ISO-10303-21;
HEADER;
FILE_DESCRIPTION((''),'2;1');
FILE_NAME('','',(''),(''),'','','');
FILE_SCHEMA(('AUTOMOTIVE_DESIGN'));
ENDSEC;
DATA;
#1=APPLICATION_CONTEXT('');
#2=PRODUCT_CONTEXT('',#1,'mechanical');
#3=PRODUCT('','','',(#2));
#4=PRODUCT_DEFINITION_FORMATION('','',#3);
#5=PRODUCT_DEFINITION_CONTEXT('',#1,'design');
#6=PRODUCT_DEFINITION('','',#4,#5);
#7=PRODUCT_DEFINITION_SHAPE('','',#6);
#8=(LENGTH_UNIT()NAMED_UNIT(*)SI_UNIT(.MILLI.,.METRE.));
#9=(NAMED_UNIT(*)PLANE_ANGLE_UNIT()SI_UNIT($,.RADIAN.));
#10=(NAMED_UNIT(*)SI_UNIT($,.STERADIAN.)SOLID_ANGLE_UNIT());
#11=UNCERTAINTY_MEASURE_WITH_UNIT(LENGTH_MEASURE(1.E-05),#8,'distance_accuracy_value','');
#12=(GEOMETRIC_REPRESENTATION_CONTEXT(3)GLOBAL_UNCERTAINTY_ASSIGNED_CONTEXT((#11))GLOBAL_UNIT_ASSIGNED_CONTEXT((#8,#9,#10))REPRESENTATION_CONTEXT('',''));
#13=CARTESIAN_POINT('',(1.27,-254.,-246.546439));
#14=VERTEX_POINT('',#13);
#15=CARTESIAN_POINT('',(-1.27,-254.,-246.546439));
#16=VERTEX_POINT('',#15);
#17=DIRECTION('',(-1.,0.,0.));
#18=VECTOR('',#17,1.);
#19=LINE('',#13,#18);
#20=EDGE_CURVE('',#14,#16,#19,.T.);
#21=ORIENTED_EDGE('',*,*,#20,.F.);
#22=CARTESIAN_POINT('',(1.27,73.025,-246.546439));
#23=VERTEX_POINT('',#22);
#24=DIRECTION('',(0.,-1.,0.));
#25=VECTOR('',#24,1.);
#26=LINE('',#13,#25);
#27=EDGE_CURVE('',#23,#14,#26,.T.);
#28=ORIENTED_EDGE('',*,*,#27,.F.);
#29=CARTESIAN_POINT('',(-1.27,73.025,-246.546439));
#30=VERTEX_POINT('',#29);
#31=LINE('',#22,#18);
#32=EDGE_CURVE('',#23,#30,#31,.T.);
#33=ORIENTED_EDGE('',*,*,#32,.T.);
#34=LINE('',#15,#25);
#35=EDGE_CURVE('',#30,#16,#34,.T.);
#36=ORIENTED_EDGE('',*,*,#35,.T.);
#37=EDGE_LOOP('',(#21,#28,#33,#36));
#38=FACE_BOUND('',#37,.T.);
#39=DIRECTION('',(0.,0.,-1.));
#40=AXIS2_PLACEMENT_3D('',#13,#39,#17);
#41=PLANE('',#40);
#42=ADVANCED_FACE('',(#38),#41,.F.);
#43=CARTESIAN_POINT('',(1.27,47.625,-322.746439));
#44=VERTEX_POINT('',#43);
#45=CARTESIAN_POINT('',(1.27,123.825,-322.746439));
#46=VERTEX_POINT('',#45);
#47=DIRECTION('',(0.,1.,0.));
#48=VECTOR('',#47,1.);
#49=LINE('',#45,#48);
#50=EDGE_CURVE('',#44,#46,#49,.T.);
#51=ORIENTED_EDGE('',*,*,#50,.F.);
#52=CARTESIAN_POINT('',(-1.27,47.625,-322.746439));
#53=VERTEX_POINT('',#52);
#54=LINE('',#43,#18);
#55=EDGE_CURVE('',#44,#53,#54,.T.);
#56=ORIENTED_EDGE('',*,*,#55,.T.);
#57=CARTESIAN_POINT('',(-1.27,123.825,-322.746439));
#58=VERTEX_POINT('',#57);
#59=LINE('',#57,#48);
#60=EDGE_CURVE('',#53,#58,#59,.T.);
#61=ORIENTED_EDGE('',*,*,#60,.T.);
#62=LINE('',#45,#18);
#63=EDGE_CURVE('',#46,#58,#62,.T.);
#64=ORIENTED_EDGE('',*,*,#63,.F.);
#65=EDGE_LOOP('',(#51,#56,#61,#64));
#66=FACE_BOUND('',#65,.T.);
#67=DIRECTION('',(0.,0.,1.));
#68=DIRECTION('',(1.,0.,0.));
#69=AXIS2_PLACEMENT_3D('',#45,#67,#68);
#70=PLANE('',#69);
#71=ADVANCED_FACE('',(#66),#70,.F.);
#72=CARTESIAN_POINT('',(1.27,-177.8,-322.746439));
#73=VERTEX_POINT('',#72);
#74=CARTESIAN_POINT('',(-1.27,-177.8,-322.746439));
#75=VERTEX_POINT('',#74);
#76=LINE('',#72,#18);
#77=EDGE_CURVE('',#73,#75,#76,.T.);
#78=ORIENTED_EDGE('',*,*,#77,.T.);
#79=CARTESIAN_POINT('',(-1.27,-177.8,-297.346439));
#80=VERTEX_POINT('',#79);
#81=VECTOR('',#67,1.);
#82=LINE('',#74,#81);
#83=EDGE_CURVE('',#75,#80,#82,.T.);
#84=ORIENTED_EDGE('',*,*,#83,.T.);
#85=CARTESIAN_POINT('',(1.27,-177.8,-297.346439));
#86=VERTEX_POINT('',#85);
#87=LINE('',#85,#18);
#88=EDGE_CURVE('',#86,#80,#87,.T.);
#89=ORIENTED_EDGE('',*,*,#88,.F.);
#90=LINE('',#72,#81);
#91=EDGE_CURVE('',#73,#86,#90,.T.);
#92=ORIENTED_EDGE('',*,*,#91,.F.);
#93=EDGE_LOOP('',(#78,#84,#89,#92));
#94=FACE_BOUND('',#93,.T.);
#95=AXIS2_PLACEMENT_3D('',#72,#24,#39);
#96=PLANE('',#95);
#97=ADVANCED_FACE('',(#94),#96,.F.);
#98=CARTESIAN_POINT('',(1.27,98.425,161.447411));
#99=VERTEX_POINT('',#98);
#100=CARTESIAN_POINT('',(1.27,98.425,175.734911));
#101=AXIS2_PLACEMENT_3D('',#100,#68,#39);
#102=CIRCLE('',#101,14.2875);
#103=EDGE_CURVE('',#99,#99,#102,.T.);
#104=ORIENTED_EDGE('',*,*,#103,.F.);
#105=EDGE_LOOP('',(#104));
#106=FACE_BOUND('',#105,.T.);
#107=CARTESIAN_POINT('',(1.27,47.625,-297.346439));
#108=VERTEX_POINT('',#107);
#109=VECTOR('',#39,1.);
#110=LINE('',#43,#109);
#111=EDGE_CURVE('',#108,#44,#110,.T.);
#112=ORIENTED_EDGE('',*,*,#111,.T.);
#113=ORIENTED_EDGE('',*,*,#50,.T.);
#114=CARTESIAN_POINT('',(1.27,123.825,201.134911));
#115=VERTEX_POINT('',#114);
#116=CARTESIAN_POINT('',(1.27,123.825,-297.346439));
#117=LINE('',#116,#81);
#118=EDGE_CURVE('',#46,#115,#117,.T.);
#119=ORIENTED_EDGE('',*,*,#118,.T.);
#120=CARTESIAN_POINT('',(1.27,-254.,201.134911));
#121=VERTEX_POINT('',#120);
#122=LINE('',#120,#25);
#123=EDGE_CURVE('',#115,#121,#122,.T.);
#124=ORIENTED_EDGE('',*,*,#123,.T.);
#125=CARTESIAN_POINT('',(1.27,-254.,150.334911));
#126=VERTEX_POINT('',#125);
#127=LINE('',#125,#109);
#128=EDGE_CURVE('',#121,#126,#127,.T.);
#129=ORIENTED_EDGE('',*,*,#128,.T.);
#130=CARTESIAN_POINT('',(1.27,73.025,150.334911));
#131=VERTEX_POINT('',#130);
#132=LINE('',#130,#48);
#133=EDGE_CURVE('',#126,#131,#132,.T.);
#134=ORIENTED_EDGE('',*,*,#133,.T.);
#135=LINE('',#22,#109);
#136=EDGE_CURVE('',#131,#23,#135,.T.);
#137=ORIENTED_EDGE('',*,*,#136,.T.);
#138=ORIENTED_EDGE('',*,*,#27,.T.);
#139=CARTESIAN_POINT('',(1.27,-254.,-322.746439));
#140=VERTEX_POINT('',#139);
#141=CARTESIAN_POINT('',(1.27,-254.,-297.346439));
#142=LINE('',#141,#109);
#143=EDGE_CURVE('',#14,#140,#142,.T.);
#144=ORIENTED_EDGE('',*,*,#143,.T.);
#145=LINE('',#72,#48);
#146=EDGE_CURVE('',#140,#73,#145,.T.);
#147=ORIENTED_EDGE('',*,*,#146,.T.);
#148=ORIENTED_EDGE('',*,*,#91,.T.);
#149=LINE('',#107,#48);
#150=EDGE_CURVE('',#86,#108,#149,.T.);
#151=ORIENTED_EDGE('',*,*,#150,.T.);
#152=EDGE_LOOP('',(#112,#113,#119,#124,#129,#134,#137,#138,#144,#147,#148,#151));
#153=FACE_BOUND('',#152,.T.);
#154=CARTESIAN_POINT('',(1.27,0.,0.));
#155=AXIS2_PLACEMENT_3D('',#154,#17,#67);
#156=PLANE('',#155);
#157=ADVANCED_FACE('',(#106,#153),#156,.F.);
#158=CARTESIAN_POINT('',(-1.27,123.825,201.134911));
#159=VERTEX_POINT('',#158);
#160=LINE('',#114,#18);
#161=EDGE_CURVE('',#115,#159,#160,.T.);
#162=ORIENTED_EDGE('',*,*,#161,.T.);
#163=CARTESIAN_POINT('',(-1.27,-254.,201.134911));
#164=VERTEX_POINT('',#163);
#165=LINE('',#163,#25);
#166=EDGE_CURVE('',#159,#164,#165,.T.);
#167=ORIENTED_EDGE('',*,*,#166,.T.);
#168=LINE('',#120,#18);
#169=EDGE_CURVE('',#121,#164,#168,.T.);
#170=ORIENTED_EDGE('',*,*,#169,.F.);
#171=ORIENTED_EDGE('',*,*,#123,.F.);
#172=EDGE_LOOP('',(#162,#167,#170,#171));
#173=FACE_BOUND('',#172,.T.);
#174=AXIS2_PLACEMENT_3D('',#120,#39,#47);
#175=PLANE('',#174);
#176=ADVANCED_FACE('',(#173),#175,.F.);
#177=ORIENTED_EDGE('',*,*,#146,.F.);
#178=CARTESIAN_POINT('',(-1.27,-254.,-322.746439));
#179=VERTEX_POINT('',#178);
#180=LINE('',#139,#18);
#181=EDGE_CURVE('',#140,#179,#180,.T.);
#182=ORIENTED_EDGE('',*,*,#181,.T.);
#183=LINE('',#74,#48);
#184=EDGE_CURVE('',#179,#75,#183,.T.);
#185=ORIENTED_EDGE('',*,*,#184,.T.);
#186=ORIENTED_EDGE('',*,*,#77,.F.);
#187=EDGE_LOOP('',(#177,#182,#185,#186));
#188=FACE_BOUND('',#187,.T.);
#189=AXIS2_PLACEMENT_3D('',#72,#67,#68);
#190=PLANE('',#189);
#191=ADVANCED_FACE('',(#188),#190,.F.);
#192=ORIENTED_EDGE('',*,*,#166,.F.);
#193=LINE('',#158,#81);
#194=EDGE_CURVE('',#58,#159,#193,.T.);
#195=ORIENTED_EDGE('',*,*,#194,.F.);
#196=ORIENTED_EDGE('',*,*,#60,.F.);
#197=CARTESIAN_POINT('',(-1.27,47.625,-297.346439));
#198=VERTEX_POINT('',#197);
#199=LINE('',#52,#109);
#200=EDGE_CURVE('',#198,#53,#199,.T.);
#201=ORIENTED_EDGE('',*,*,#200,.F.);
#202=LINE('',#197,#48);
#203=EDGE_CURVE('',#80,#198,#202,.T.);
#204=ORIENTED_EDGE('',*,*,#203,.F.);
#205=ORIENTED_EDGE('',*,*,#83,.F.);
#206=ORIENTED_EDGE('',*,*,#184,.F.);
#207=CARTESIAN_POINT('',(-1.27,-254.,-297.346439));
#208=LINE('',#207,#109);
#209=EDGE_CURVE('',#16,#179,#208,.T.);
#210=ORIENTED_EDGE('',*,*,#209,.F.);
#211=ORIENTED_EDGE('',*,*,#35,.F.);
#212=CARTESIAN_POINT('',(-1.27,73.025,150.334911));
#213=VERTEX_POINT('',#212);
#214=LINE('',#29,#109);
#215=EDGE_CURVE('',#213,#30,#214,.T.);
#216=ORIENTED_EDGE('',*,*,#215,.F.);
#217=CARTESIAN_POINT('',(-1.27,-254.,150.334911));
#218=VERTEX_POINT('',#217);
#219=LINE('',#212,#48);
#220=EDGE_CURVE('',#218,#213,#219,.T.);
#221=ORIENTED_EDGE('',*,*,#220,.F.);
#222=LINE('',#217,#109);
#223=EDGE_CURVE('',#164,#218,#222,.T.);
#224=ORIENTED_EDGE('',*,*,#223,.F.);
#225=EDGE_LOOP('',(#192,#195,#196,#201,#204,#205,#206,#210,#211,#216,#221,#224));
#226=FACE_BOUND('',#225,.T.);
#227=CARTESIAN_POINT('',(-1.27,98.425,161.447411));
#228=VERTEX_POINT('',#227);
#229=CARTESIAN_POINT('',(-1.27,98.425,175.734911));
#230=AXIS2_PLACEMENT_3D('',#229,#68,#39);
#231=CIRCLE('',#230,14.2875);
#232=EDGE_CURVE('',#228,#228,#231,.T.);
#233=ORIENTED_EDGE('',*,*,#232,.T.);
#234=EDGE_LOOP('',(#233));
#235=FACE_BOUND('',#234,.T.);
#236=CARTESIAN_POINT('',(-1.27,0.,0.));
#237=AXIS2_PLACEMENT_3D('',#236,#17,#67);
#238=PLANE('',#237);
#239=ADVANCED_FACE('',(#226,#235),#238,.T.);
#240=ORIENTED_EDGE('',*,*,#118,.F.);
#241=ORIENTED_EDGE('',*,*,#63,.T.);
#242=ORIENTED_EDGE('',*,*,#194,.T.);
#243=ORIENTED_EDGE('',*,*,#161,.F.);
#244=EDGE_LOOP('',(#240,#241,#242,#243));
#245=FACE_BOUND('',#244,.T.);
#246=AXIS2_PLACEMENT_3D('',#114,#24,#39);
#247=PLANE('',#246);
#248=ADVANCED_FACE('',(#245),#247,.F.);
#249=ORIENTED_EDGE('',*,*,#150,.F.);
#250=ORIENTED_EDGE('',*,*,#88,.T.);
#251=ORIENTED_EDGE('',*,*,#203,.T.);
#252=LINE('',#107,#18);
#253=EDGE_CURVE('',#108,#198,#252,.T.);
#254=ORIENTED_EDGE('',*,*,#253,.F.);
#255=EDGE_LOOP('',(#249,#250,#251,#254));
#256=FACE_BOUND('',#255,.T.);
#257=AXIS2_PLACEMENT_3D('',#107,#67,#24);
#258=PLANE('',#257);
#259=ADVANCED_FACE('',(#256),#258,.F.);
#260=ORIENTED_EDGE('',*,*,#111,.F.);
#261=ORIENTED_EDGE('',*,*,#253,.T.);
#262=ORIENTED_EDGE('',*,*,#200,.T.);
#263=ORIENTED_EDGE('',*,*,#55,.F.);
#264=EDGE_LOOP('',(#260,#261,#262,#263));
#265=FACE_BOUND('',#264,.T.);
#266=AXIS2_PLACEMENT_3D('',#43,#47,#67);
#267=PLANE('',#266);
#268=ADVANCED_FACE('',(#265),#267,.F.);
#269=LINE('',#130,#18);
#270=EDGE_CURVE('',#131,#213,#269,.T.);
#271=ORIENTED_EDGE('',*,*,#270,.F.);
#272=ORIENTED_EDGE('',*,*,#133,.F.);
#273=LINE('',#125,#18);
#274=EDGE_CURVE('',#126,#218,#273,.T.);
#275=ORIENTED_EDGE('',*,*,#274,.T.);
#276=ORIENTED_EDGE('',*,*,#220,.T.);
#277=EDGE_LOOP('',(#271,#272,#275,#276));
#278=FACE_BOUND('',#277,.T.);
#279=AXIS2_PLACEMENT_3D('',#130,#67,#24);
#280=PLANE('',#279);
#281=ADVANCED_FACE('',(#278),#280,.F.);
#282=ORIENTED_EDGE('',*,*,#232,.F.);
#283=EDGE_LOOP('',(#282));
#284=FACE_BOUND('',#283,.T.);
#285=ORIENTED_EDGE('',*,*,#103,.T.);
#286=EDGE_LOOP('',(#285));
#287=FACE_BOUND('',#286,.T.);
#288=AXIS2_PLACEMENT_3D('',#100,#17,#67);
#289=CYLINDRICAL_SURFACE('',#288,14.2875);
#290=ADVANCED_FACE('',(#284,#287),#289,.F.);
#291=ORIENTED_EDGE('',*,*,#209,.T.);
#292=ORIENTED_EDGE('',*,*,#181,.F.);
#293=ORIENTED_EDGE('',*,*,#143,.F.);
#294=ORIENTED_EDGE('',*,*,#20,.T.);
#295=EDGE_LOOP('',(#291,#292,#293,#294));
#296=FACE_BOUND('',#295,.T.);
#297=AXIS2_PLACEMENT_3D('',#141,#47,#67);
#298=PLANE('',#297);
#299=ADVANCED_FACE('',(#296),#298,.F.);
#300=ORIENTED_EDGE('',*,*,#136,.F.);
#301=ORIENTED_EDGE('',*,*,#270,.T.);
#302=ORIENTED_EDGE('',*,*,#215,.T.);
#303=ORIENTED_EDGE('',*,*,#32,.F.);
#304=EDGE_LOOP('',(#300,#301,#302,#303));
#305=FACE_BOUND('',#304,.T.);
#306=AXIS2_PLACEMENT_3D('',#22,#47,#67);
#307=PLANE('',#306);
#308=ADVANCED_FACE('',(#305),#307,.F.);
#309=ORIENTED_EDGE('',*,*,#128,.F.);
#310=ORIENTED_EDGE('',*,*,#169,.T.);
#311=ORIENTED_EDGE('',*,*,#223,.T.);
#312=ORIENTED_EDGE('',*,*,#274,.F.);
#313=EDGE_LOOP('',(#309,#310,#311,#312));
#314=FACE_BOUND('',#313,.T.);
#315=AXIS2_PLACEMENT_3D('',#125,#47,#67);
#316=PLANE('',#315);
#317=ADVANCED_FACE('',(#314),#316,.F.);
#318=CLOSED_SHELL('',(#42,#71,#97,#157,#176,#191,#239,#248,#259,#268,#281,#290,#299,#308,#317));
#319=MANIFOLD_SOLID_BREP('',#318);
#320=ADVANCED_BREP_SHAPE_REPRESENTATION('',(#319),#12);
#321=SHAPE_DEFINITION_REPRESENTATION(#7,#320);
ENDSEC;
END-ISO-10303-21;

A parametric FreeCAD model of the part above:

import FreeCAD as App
import Part
import Sketcher

V = App.Vector
Q = App.Units.Quantity


def add_polygon(sketch, points):
    """Adds a closed chain of lines whose ends are joined by coincident constraints."""
    first, n = sketch.GeometryCount, len(points)
    for a, b in zip(points, points[1:] + points[:1]):
        sketch.addGeometry(Part.LineSegment(App.Vector(*a, 0), App.Vector(*b, 0)), False)
    for i in range(n):
        sketch.addConstraint(Sketcher.Constraint("Coincident", first + i, 2, first + (i + 1) % n, 1))

doc = App.newDocument("Part")
body = doc.addObject("PartDesign::Body", "Body")

sketch1 = body.newObject("Sketcher::SketchObject", "Sketch")
sketch1.AttachmentSupport = (doc.getObject("YZ_Plane"), [""])
sketch1.MapMode = "FlatFace"
add_polygon(sketch1, [(124, 201), (-254, 201), (-254, 150), (73, 150), (73, -247), (-254, -247), (-254, -323), (-178, -323), (-178, -297), (48, -297), (48, -323), (124, -323)])
sketch1.addGeometry(Part.Circle(V(98, 176, 0), V(0, 0, 1), 14), False)
sketch1.addConstraint(Sketcher.Constraint("Horizontal", 0))
sketch1.addConstraint(Sketcher.Constraint("Vertical", 1))
sketch1.addConstraint(Sketcher.Constraint("Horizontal", 2))
sketch1.addConstraint(Sketcher.Constraint("Vertical", 3))
sketch1.addConstraint(Sketcher.Constraint("Horizontal", 4))
sketch1.addConstraint(Sketcher.Constraint("Vertical", 5))
sketch1.addConstraint(Sketcher.Constraint("Horizontal", 6))
sketch1.addConstraint(Sketcher.Constraint("Vertical", 7))
sketch1.addConstraint(Sketcher.Constraint("Horizontal", 8))
sketch1.addConstraint(Sketcher.Constraint("Vertical", 9))
sketch1.addConstraint(Sketcher.Constraint("Horizontal", 10))
sketch1.addConstraint(Sketcher.Constraint("Vertical", 11))
sketch1.addConstraint(Sketcher.Constraint("Horizontal", 6, 2, 9, 2))
sketch1.addConstraint(Sketcher.Constraint("Vertical", 1, 2, 4, 2))
sketch1.addConstraint(Sketcher.Constraint("Equal", 6, 10))
sketch1.addConstraint(Sketcher.Constraint("Equal", 10, 5))
sketch1.addConstraint(Sketcher.Constraint("DistanceX", 6, 1, 6, 2, Q("3 in")))
sketch1.addConstraint(Sketcher.Constraint("DistanceY", 1, 2, 1, 1, Q("2 in")))
sketch1.addConstraint(Sketcher.Constraint("DistanceY", 7, 1, 7, 2, Q("1 in")))
sketch1.addConstraint(Sketcher.Constraint("Diameter", 12, Q("1.125 in")))
sketch1.addConstraint(Sketcher.Constraint("DistanceX", 0, 2, -1, 1, Q("10 in")))
sketch1.addConstraint(Sketcher.Constraint("DistanceY", 12, 3, 0, 2, Q("1 in")))
sketch1.addConstraint(Sketcher.Constraint("DistanceX", 2, 2, 12, 3, Q("1 in")))
sketch1.addConstraint(Sketcher.Constraint("DistanceX", 8, 2, 3, 2, Q("1 in")))
sketch1.addConstraint(Sketcher.Constraint("DistanceX", 0, 2, 0, 1, Q("14.875 in")))
sketch1.addConstraint(Sketcher.Constraint("DistanceY", 3, 2, 3, 1, Q("396.88135 mm")))
sketch1.addConstraint(Sketcher.Constraint("DistanceY", -1, 1, 12, 3, Q("175.734911 mm")))
pad1 = body.newObject("PartDesign::Pad", "Pad")
pad1.Profile = sketch1
pad1.Length = Q("0.1 in")
pad1.Midplane = True

doc.recompute()
